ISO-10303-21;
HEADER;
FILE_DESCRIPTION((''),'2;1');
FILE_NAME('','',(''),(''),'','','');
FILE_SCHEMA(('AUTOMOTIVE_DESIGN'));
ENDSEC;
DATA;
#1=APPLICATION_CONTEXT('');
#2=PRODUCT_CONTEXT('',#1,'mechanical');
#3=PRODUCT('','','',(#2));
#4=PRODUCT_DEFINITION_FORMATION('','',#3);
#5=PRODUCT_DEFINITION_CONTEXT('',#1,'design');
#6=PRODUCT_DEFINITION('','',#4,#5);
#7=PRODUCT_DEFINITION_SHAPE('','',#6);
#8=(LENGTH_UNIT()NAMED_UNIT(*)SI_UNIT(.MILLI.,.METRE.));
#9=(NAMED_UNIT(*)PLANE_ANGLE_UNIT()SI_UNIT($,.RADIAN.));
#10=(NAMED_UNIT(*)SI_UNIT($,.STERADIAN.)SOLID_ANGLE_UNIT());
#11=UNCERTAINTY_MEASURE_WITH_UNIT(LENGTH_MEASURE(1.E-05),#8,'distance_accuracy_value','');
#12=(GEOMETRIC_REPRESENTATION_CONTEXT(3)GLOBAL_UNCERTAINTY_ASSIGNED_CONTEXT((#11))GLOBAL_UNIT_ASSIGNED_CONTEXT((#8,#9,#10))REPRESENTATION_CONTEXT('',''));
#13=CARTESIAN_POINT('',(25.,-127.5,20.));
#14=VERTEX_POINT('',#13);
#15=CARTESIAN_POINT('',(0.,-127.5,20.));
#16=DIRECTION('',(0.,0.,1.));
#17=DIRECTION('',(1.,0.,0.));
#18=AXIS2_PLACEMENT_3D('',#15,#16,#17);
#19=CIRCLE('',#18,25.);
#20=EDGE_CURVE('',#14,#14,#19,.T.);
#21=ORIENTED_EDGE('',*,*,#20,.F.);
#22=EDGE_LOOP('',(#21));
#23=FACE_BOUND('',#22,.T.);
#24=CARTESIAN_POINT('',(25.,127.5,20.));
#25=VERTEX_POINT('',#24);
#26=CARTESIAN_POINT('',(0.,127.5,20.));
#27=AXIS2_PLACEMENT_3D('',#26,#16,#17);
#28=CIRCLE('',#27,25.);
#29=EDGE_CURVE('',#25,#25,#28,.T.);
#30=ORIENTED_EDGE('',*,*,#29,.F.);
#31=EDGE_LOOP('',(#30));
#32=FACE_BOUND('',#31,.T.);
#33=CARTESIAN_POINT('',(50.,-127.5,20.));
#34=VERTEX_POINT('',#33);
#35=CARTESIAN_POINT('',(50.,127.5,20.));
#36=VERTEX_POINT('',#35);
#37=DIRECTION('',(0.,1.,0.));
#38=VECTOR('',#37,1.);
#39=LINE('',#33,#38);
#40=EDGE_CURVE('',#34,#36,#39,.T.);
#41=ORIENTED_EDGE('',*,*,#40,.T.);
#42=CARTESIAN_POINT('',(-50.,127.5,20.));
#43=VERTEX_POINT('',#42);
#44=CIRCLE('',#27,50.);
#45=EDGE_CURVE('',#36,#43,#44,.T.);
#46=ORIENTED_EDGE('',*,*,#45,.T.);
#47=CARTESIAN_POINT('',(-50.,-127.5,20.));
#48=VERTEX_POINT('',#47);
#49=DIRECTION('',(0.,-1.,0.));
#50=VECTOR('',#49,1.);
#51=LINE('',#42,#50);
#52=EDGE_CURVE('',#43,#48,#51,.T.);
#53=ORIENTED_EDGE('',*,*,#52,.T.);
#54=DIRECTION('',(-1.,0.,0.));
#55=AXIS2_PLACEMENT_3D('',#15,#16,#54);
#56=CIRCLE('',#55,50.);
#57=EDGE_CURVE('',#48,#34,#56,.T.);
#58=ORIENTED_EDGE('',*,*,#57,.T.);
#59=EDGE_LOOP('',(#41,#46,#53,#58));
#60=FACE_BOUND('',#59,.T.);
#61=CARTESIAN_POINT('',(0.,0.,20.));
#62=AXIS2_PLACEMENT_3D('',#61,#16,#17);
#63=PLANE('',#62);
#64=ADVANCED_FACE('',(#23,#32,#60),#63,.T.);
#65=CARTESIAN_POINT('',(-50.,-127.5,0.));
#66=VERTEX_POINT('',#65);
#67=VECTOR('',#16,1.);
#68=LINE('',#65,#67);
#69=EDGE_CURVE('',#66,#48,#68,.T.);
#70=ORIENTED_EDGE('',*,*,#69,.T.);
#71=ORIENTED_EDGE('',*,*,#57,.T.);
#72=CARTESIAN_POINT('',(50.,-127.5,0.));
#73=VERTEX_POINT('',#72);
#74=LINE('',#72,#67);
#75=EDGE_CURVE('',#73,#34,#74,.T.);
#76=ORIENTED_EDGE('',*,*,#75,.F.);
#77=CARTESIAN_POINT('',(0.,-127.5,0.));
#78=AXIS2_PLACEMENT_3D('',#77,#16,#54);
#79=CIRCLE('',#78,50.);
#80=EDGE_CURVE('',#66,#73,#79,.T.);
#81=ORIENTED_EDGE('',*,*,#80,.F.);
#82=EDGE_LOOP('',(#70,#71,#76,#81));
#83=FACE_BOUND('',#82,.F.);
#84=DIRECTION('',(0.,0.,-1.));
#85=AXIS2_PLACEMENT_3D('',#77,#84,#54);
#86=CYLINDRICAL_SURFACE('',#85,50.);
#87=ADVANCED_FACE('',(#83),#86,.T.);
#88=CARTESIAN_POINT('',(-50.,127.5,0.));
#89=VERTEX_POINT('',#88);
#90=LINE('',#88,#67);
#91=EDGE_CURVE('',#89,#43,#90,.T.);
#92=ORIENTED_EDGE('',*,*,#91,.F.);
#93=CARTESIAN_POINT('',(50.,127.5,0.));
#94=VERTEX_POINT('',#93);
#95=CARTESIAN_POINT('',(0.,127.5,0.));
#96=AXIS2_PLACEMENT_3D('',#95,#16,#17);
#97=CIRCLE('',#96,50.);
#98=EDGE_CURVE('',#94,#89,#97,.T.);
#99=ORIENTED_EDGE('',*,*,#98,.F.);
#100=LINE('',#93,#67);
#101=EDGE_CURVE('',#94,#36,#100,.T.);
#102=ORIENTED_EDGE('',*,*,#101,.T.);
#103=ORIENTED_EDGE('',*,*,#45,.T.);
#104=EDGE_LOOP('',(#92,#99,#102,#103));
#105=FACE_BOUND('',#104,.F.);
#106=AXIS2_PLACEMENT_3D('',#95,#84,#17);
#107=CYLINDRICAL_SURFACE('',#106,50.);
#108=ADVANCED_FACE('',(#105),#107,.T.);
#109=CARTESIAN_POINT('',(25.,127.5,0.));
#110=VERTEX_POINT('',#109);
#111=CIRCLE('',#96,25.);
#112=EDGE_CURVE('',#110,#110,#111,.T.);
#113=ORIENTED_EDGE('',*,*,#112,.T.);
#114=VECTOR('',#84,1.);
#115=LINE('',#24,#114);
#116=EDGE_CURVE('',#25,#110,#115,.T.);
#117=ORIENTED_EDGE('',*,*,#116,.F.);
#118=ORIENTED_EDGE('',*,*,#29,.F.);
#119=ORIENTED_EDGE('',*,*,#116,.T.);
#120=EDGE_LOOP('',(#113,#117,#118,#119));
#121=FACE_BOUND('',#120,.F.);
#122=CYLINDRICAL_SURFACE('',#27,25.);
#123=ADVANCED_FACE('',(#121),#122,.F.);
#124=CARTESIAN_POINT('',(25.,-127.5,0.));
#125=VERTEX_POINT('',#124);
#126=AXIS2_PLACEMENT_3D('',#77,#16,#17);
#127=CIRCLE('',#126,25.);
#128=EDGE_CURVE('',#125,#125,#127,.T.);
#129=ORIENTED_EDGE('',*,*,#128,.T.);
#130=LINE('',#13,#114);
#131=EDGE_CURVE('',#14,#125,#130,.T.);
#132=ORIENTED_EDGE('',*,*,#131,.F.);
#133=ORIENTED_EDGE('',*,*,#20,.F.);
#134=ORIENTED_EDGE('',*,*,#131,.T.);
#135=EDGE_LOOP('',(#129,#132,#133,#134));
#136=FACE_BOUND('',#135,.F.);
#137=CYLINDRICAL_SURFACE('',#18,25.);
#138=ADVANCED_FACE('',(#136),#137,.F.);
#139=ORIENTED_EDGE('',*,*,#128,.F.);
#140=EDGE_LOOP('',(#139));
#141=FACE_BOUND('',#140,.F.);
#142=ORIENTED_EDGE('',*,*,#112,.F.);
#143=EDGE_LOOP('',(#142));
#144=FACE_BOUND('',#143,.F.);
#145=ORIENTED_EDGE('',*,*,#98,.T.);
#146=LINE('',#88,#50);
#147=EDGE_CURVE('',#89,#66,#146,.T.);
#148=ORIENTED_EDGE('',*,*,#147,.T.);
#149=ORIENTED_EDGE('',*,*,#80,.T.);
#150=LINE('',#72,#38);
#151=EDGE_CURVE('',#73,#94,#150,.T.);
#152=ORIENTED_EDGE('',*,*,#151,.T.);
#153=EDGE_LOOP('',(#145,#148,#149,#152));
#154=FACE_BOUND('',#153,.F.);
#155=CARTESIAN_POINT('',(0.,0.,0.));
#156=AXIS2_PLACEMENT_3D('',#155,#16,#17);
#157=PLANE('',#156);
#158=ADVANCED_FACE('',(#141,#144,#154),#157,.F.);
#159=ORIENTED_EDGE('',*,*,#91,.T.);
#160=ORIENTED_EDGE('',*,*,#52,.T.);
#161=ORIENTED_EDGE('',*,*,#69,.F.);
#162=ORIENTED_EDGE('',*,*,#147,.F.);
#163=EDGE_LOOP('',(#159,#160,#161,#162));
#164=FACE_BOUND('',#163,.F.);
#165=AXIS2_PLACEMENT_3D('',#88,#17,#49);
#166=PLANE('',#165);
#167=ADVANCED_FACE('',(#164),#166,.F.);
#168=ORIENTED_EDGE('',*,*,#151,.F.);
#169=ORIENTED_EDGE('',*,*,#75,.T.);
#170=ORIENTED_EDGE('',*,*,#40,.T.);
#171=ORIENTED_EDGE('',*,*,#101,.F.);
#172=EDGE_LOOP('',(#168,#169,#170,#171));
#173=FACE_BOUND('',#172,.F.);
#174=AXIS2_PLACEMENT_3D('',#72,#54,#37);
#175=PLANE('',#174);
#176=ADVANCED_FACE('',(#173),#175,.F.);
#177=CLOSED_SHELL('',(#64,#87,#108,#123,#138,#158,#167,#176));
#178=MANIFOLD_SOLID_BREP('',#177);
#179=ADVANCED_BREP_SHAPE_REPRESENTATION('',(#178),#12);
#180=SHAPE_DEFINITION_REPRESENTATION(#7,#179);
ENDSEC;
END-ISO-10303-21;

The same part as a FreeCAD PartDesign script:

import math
import FreeCAD as App
import Part
import Sketcher
from FreeCAD import Vector
Q = App.Units.Quantity

doc = App.newDocument("Part")
params = doc.addObject("Spreadsheet::Sheet", "Params")
for row, (alias, value) in enumerate([
    ("sketch1_radius", "50 mm"),
    ("sketch1_height", "255 mm"),
    ("pad1_length", "20 mm"),
    ("sketch2_diameter", "50 mm"),
    ("pocket1_length", "20 mm"),
], start=1):
    params.set(f"A{row}", alias)
    params.set(f"B{row}", "=" + value)
    params.setAlias(f"B{row}", alias)

body = doc.addObject("PartDesign::Body", "Body")

sketch1 = body.newObject("Sketcher::SketchObject", "Sketch")
sketch1.AttachmentSupport = (doc.getObject("XY_Plane"), [""])
sketch1.MapMode = "FlatFace"
sketch1.addGeometry([
    Part.LineSegment(Vector(50, -128, 0), Vector(50, 128, 0)),
    Part.ArcOfCircle(Part.Circle(Vector(0, 128, 0), Vector(0, 0, 1), 50), math.radians(0), math.radians(180)),
    Part.LineSegment(Vector(-50, 128, 0), Vector(-50, -128, 0)),
    Part.ArcOfCircle(Part.Circle(Vector(0, -128, 0), Vector(0, 0, 1), 50), math.radians(180), math.radians(360)),
], False)
sketch1.addConstraint([
    Sketcher.Constraint("Tangent", 0, 2, 1, 1),
    Sketcher.Constraint("Tangent", 1, 2, 2, 1),
    Sketcher.Constraint("Tangent", 2, 2, 3, 1),
    Sketcher.Constraint("Tangent", 3, 2, 0, 1),
    Sketcher.Constraint("Vertical", 0),
    Sketcher.Constraint("Vertical", 2),
    Sketcher.Constraint("Symmetric", 1, 3, 3, 3, -1, 1),
    Sketcher.Constraint("Radius", 1, Q("50 mm")),
    Sketcher.Constraint("DistanceY", 0, 1, 0, 2, Q("255 mm")),
])
sketch1.setExpression("Constraints[7]", "Params.sketch1_radius")
sketch1.setExpression("Constraints[8]", "Params.sketch1_height")
pad1 = body.newObject("PartDesign::Pad", "Pad")
pad1.Profile = sketch1
pad1.setExpression("Length", "Params.pad1_length")

sketch2 = body.newObject("Sketcher::SketchObject", "Sketch001")
sketch2.AttachmentSupport = (doc.getObject("XY_Plane"), [""])
sketch2.MapMode = "FlatFace"
sketch2.AttachmentOffset = App.Placement(Vector(0, 0, 20), App.Rotation())
sketch2.addGeometry([
    Part.Circle(Vector(0, 128, 0), Vector(0, 0, 1), 25),
    Part.Circle(Vector(0, -128, 0), Vector(0, 0, 1), 25),
], False)
sketch2.addConstraint([
    Sketcher.Constraint("Equal", 0, 1),
    Sketcher.Constraint("Symmetric", 0, 3, 1, 3, -1, 1),
    Sketcher.Constraint("PointOnObject", 0, 3, -2),
    Sketcher.Constraint("Diameter", 0, Q("50 mm")),
    Sketcher.Constraint("DistanceY", 1, 3, 0, 3, Q("255 mm")),
])
sketch2.setExpression("Constraints[3]", "Params.sketch2_diameter")
pocket1 = body.newObject("PartDesign::Pocket", "Pocket")
pocket1.Profile = sketch2
pocket1.setExpression("Length", "Params.pocket1_length")

doc.recompute()
